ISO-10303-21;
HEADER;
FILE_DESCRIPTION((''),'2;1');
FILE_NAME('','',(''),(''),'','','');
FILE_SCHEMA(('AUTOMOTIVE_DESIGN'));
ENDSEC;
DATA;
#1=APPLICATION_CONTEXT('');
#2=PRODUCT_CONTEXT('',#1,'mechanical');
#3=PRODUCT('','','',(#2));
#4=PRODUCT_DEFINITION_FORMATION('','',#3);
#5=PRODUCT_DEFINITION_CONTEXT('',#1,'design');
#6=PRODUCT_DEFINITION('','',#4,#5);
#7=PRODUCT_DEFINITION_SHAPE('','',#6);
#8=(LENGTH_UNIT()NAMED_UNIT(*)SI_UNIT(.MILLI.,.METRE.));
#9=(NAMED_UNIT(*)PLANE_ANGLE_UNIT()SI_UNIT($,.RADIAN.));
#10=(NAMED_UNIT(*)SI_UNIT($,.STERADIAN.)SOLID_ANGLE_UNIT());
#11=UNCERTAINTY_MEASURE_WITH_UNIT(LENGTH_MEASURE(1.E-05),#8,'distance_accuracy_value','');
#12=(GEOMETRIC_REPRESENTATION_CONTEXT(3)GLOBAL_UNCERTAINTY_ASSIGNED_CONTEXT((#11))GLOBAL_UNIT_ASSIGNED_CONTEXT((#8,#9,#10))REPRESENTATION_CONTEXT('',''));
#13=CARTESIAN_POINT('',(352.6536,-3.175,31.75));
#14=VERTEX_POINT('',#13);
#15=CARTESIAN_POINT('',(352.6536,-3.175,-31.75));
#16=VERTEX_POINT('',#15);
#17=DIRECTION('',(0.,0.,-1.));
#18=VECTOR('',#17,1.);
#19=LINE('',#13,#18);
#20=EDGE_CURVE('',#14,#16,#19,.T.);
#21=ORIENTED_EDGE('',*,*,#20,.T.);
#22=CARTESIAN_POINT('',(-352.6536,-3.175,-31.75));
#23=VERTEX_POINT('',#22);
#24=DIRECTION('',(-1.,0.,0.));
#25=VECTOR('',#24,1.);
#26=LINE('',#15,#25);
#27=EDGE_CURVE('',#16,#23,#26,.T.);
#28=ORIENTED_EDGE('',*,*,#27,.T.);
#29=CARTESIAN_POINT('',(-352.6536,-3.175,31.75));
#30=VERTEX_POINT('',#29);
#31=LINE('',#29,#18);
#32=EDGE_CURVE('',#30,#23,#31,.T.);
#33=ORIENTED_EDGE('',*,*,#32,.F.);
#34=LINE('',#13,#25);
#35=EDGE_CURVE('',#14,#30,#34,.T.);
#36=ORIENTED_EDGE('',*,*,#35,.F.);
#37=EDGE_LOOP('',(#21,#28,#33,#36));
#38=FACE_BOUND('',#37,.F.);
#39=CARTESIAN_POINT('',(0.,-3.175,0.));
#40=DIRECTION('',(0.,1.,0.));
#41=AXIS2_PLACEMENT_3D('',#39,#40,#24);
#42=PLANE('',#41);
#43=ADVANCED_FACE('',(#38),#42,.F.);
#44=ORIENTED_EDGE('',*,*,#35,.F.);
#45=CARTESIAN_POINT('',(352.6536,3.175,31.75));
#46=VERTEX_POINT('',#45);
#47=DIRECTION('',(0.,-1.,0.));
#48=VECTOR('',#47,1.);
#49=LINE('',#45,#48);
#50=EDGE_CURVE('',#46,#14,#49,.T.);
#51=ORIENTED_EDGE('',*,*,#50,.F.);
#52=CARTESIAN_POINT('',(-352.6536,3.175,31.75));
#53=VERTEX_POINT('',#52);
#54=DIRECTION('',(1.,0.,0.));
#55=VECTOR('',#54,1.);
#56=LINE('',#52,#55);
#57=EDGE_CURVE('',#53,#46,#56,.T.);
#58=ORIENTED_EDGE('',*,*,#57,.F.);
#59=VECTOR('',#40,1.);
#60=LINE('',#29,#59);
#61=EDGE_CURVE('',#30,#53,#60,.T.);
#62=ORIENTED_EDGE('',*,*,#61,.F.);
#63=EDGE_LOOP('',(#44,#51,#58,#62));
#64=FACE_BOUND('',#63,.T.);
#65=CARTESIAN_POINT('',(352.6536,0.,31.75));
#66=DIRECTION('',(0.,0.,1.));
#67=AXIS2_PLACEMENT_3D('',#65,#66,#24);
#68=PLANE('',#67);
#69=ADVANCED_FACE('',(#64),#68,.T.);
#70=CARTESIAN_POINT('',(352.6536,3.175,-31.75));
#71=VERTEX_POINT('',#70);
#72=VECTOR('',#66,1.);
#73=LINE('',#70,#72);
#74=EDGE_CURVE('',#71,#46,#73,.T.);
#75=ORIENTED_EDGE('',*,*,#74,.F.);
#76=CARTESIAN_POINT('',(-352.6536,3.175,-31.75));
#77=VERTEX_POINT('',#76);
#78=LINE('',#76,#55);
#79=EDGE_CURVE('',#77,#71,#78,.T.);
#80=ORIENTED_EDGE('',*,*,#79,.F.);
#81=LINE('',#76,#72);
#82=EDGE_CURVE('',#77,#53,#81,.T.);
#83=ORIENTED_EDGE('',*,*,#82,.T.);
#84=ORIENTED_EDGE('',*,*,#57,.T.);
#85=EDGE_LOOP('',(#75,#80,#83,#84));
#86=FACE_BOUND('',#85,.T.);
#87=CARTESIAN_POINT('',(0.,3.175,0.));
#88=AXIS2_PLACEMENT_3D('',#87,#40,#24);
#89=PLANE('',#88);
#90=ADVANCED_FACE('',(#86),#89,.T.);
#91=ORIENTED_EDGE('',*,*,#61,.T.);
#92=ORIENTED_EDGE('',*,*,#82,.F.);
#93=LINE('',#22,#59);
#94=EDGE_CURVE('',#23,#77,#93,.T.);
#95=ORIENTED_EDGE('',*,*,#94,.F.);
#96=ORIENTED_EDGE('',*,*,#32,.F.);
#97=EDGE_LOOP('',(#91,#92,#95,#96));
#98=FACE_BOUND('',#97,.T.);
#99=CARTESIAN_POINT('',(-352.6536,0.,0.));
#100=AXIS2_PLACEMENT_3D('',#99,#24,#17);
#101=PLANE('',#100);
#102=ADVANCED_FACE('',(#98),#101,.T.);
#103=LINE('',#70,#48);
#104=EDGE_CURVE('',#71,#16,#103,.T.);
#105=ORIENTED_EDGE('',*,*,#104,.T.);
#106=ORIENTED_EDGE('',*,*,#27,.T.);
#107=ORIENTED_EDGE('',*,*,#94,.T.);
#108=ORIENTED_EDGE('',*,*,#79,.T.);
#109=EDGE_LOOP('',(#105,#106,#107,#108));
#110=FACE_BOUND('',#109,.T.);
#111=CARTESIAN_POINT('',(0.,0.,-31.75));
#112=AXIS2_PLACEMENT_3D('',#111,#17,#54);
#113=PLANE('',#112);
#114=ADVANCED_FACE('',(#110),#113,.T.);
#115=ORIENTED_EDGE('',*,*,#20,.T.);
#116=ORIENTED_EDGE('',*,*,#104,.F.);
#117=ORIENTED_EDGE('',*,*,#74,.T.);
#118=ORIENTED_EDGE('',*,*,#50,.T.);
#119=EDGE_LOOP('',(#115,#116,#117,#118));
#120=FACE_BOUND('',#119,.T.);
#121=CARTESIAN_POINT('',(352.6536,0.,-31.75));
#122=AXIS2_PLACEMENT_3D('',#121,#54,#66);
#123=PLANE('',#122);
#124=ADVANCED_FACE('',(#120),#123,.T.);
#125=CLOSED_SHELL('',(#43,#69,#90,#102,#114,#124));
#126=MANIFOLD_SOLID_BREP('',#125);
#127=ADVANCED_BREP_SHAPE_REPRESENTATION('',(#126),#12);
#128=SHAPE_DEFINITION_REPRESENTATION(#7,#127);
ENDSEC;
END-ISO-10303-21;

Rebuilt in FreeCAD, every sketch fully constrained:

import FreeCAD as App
import Part
import Sketcher
from FreeCAD import Vector
Q = App.Units.Quantity


def add_polygon(sketch, points):
    """Adds a closed chain of lines whose ends are joined by coincident constraints."""
    first, n = sketch.GeometryCount, len(points)
    for a, b in zip(points, points[1:] + points[:1]):
        sketch.addGeometry(Part.LineSegment(App.Vector(*a, 0), App.Vector(*b, 0)), False)
    for i in range(n):
        sketch.addConstraint(Sketcher.Constraint("Coincident", first + i, 2, first + (i + 1) % n, 1))

doc = App.newDocument("Part")
body = doc.addObject("PartDesign::Body", "Body")

# Sketch on XZ plane
sketch1 = doc.addObject("Sketcher::SketchObject", "Sketch")
body.addObject(sketch1)
sketch1.AttachmentSupport = (doc.XZ_Plane, [""])
sketch1.MapMode = "FlatFace"
add_polygon(sketch1, [(353, -32), (-353, -32), (-353, 32), (353, 32)])  # lines 0-3
sketch1.addConstraint([
    Sketcher.Constraint("Horizontal", 0),
    Sketcher.Constraint("Vertical", 1),
    Sketcher.Constraint("Horizontal", 2),
    Sketcher.Constraint("Vertical", 3),
    Sketcher.Constraint("Symmetric", 0, 2, 2, 2, -1, 1),
    Sketcher.Constraint("DistanceY", 1, 1, 1, 2, Q("2.5 in")),
    Sketcher.Constraint("DistanceX", 0, 2, 0, 1, Q("27.768 in")),
])
pad1 = doc.addObject("PartDesign::Pad", "Pad")
body.addObject(pad1)
pad1.Profile = sketch1
pad1.Length = Q("0.25 in")
pad1.Midplane = True

doc.recompute()
